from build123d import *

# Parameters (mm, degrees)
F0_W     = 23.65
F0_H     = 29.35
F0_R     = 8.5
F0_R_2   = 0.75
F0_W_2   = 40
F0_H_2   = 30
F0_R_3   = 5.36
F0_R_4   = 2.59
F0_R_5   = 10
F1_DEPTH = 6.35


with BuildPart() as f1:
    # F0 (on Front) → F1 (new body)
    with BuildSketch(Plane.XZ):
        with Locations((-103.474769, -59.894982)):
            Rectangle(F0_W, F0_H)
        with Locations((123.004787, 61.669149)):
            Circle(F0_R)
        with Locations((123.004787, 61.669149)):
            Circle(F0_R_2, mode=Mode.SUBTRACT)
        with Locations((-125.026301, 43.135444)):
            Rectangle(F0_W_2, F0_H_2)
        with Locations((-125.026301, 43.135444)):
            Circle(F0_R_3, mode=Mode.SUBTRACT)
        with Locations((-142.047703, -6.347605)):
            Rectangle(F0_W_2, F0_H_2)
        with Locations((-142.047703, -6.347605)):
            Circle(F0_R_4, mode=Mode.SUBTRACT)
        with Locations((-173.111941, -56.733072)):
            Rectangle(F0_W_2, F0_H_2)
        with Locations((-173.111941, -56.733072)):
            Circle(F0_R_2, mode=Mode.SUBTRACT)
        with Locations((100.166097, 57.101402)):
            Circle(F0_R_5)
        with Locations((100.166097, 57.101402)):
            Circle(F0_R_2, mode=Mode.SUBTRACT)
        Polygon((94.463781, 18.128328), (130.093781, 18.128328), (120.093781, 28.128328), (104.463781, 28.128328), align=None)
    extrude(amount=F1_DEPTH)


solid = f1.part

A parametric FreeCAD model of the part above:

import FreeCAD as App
import Part
import Sketcher
from FreeCAD import Vector


def add_polygon(sketch, points):
    """Adds a closed chain of lines whose ends are joined by coincident constraints."""
    first, n = sketch.GeometryCount, len(points)
    for a, b in zip(points, points[1:] + points[:1]):
        sketch.addGeometry(Part.LineSegment(App.Vector(*a, 0), App.Vector(*b, 0)), False)
    for i in range(n):
        sketch.addConstraint(Sketcher.Constraint("Coincident", first + i, 2, first + (i + 1) % n, 1))

doc = App.newDocument("Part")
body = doc.addObject("PartDesign::Body", "Body")
body.AllowCompound = True

# Sketch on XZ plane
sketch1 = body.newObject("Sketcher::SketchObject", "Sketch")
sketch1.AttachmentSupport = (doc.getObject("XZ_Plane"), [""])
sketch1.MapMode = "FlatFace"
add_polygon(sketch1, [(-115.3, -45.2), (-115.3, -74.6), (-91.6, -74.6), (-91.6, -45.2)])  # lines 0-3
sketch1.addGeometry(Part.Circle(Vector(123, 61.7, 0), Vector(0, 0, 1), 8.5), False)  # 4
sketch1.addGeometry(Part.Circle(Vector(123, 61.7, 0), Vector(0, 0, 1), 0.8), False)  # 5
add_polygon(sketch1, [(-145, 58.1), (-145, 28.1), (-105, 28.1), (-105, 58.1)])  # lines 6-9
sketch1.addGeometry(Part.Circle(Vector(-125, 43.1, 0), Vector(0, 0, 1), 5.4), False)  # 10
add_polygon(sketch1, [(-162, 8.7), (-162, -21.3), (-122, -21.3), (-122, 8.7)])  # lines 11-14
sketch1.addGeometry(Part.Circle(Vector(-142, -6.3, 0), Vector(0, 0, 1), 2.6), False)  # 15
add_polygon(sketch1, [(-193.1, -41.7), (-193.1, -71.7), (-153.1, -71.7), (-153.1, -41.7)])  # lines 16-19
sketch1.addGeometry(Part.Circle(Vector(-173.1, -56.7, 0), Vector(0, 0, 1), 0.8), False)  # 20
sketch1.addGeometry(Part.Circle(Vector(100.2, 57.1, 0), Vector(0, 0, 1), 10), False)  # 21
sketch1.addGeometry(Part.Circle(Vector(100.2, 57.1, 0), Vector(0, 0, 1), 0.8), False)  # 22
add_polygon(sketch1, [(94.5, 18.1), (130.1, 18.1), (120.1, 28.1), (104.5, 28.1)])  # lines 23-26
sketch1.addConstraint(Sketcher.Constraint("Vertical", 0))
sketch1.addConstraint(Sketcher.Constraint("Horizontal", 1))
sketch1.addConstraint(Sketcher.Constraint("Vertical", 2))
sketch1.addConstraint(Sketcher.Constraint("Horizontal", 3))
sketch1.addConstraint(Sketcher.Constraint("Vertical", 6))
sketch1.addConstraint(Sketcher.Constraint("Horizontal", 7))
sketch1.addConstraint(Sketcher.Constraint("Vertical", 8))
sketch1.addConstraint(Sketcher.Constraint("Horizontal", 9))
sketch1.addConstraint(Sketcher.Constraint("Vertical", 11))
sketch1.addConstraint(Sketcher.Constraint("Horizontal", 12))
sketch1.addConstraint(Sketcher.Constraint("Vertical", 13))
sketch1.addConstraint(Sketcher.Constraint("Horizontal", 14))
sketch1.addConstraint(Sketcher.Constraint("Vertical", 16))
sketch1.addConstraint(Sketcher.Constraint("Horizontal", 17))
sketch1.addConstraint(Sketcher.Constraint("Vertical", 18))
sketch1.addConstraint(Sketcher.Constraint("Horizontal", 19))
sketch1.addConstraint(Sketcher.Constraint("Horizontal", 23))
sketch1.addConstraint(Sketcher.Constraint("Horizontal", 25))
sketch1.addConstraint(Sketcher.Constraint("Coincident", 5, 3, 4, 3))
sketch1.addConstraint(Sketcher.Constraint("Coincident", 22, 3, 21, 3))
sketch1.addConstraint(Sketcher.Constraint("Equal", 5, 20))
sketch1.addConstraint(Sketcher.Constraint("Equal", 20, 22))
sketch1.addConstraint(Sketcher.Constraint("Perpendicular", 24, 26))
sketch1.addConstraint(Sketcher.Constraint("Equal", 9, 12))
sketch1.addConstraint(Sketcher.Constraint("Equal", 14, 17))
sketch1.addConstraint(Sketcher.Constraint("Equal", 8, 11))
sketch1.addConstraint(Sketcher.Constraint("Equal", 13, 16))
sketch1.addConstraint(Sketcher.Constraint("Equal", 24, 26))
sketch1.addConstraint(Sketcher.Constraint("Diameter", 4, 17.0))
sketch1.addConstraint(Sketcher.Constraint("Diameter", 21, 20.0))
sketch1.addConstraint(Sketcher.Constraint("Diameter", 5, 1.5))
sketch1.addConstraint(Sketcher.Constraint("Diameter", 10, 10.72))
sketch1.addConstraint(Sketcher.Constraint("Diameter", 15, 5.18))
sketch1.addConstraint(Sketcher.Constraint("DistanceX", 7, 1, 7, 2, 40.0))
sketch1.addConstraint(Sketcher.Constraint("DistanceY", 6, 2, 6, 1, 30.0))
sketch1.addConstraint(Sketcher.Constraint("DistanceX", 6, 2, 10, 3, 20.0))
sketch1.addConstraint(Sketcher.Constraint("DistanceY", 6, 2, 10, 3, 15.0))
sketch1.addConstraint(Sketcher.Constraint("DistanceX", 11, 2, 15, 3, 20.0))
sketch1.addConstraint(Sketcher.Constraint("DistanceY", 11, 2, 15, 3, 15.0))
sketch1.addConstraint(Sketcher.Constraint("DistanceX", 16, 2, 20, 3, 20.0))
sketch1.addConstraint(Sketcher.Constraint("DistanceY", 16, 2, 20, 3, 15.0))
sketch1.addConstraint(Sketcher.Constraint("DistanceX", 24, 2, 23, 2, 10.0))
sketch1.addConstraint(Sketcher.Constraint("DistanceX", 1, 1, 1, 2, 23.65))
sketch1.addConstraint(Sketcher.Constraint("DistanceX", 23, 1, 23, 2, 35.63))
sketch1.addConstraint(Sketcher.Constraint("DistanceY", 0, 2, 0, 1, 29.35))
sketch1.addConstraint(Sketcher.Constraint("DistanceX", 10, 3, -1, 1, 125.026301))
sketch1.addConstraint(Sketcher.Constraint("DistanceX", 10, 3, 21, 3, 225.192398))
sketch1.addConstraint(Sketcher.Constraint("DistanceX", 15, 3, 21, 3, 242.2138))
sketch1.addConstraint(Sketcher.Constraint("DistanceY", -1, 1, 4, 3, 61.669149))
sketch1.addConstraint(Sketcher.Constraint("DistanceX", 20, 3, -1, 1, 173.111941))
sketch1.addConstraint(Sketcher.Constraint("DistanceX", 0, 2, -1, 1, 115.299769))
sketch1.addConstraint(Sketcher.Constraint("DistanceY", 0, 2, -1, 1, 74.569982))
sketch1.addConstraint(Sketcher.Constraint("DistanceX", -1, 1, 23, 2, 130.093781))
sketch1.addConstraint(Sketcher.Constraint("DistanceY", -1, 1, 23, 2, 18.128328))
sketch1.addConstraint(Sketcher.Constraint("DistanceX", 10, 3, 4, 3, 248.031088))
sketch1.addConstraint(Sketcher.Constraint("DistanceY", 15, 3, 10, 3, 49.483049))
sketch1.addConstraint(Sketcher.Constraint("DistanceY", 20, 3, 4, 3, 118.402221))
sketch1.addConstraint(Sketcher.Constraint("DistanceY", -1, 1, 10, 3, 43.135444))
sketch1.addConstraint(Sketcher.Constraint("DistanceY", -1, 1, 21, 3, 57.101402))
pad1 = body.newObject("PartDesign::Pad", "Pad")
pad1.Profile = sketch1
pad1.Length = 6.35

doc.recompute()
